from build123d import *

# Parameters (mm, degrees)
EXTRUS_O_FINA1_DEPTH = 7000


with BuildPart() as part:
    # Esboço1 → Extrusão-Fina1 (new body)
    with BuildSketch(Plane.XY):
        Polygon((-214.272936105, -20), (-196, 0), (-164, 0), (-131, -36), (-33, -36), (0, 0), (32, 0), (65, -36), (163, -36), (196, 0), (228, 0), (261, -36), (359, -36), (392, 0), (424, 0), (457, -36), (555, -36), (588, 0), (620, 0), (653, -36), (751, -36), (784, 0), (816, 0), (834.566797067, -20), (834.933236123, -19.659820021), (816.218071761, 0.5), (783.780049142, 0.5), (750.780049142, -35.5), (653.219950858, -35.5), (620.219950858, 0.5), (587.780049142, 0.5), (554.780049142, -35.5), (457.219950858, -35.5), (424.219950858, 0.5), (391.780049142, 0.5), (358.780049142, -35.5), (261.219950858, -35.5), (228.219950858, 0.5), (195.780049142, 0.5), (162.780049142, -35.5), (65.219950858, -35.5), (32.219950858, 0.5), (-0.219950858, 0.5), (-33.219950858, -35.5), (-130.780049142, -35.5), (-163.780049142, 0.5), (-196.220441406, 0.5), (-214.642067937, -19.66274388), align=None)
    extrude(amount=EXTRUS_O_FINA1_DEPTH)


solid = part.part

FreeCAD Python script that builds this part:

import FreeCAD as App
import Part
import Sketcher
from FreeCAD import Vector
Q = App.Units.Quantity

doc = App.newDocument("Part")
body = doc.addObject("PartDesign::Body", "Body")

# Sketch on XY plane
sketch1 = body.newObject("Sketcher::SketchObject", "Sketch")
sketch1.AttachmentSupport = (doc.getObject("XY_Plane"), [""])
sketch1.MapMode = "FlatFace"
sketch1.addGeometry([
    Part.LineSegment(Vector(-214.272936, -20, 0), Vector(-196, 0, 0)),  # 0
    Part.LineSegment(Vector(-196, 0, 0), Vector(-164, 0, 0)),  # 1
    Part.LineSegment(Vector(-164, 0, 0), Vector(-131, -36, 0)),  # 2
    Part.LineSegment(Vector(-131, -36, 0), Vector(-33, -36, 0)),  # 3
    Part.LineSegment(Vector(-33, -36, 0), Vector(0, 0, 0)),  # 4
    Part.LineSegment(Vector(0, 0, 0), Vector(32, 0, 0)),  # 5
    Part.LineSegment(Vector(32, 0, 0), Vector(65, -36, 0)),  # 6
    Part.LineSegment(Vector(65, -36, 0), Vector(163, -36, 0)),  # 7
    Part.LineSegment(Vector(163, -36, 0), Vector(196, 0, 0)),  # 8
    Part.LineSegment(Vector(196, 0, 0), Vector(228, 0, 0)),  # 9
    Part.LineSegment(Vector(228, 0, 0), Vector(261, -36, 0)),  # 10
    Part.LineSegment(Vector(261, -36, 0), Vector(359, -36, 0)),  # 11
    Part.LineSegment(Vector(359, -36, 0), Vector(392, 0, 0)),  # 12
    Part.LineSegment(Vector(392, 0, 0), Vector(424, 0, 0)),  # 13
    Part.LineSegment(Vector(424, 0, 0), Vector(457, -36, 0)),  # 14
    Part.LineSegment(Vector(457, -36, 0), Vector(555, -36, 0)),  # 15
    Part.LineSegment(Vector(555, -36, 0), Vector(588, 0, 0)),  # 16
    Part.LineSegment(Vector(588, 0, 0), Vector(620, 0, 0)),  # 17
    Part.LineSegment(Vector(620, 0, 0), Vector(653, -36, 0)),  # 18
    Part.LineSegment(Vector(653, -36, 0), Vector(751, -36, 0)),  # 19
    Part.LineSegment(Vector(751, -36, 0), Vector(784, 0, 0)),  # 20
    Part.LineSegment(Vector(784, 0, 0), Vector(816, 0, 0)),  # 21
    Part.LineSegment(Vector(816, 0, 0), Vector(834.566797, -20, 0)),  # 22
    Part.LineSegment(Vector(834.566797, -20, 0), Vector(834.933236, -19.65982, 0)),  # 23
    Part.LineSegment(Vector(834.933236, -19.65982, 0), Vector(816.218072, 0.5, 0)),  # 24
    Part.LineSegment(Vector(816.218072, 0.5, 0), Vector(783.780049, 0.5, 0)),  # 25
    Part.LineSegment(Vector(783.780049, 0.5, 0), Vector(750.780049, -35.5, 0)),  # 26
    Part.LineSegment(Vector(750.780049, -35.5, 0), Vector(653.219951, -35.5, 0)),  # 27
    Part.LineSegment(Vector(653.219951, -35.5, 0), Vector(620.219951, 0.5, 0)),  # 28
    Part.LineSegment(Vector(620.219951, 0.5, 0), Vector(587.780049, 0.5, 0)),  # 29
    Part.LineSegment(Vector(587.780049, 0.5, 0), Vector(554.780049, -35.5, 0)),  # 30
    Part.LineSegment(Vector(554.780049, -35.5, 0), Vector(457.219951, -35.5, 0)),  # 31
    Part.LineSegment(Vector(457.219951, -35.5, 0), Vector(424.219951, 0.5, 0)),  # 32
    Part.LineSegment(Vector(424.219951, 0.5, 0), Vector(391.780049, 0.5, 0)),  # 33
    Part.LineSegment(Vector(391.780049, 0.5, 0), Vector(358.780049, -35.5, 0)),  # 34
    Part.LineSegment(Vector(358.780049, -35.5, 0), Vector(261.219951, -35.5, 0)),  # 35
    Part.LineSegment(Vector(261.219951, -35.5, 0), Vector(228.219951, 0.5, 0)),  # 36
    Part.LineSegment(Vector(228.219951, 0.5, 0), Vector(195.780049, 0.5, 0)),  # 37
    Part.LineSegment(Vector(195.780049, 0.5, 0), Vector(162.780049, -35.5, 0)),  # 38
    Part.LineSegment(Vector(162.780049, -35.5, 0), Vector(65.219951, -35.5, 0)),  # 39
    Part.LineSegment(Vector(65.219951, -35.5, 0), Vector(32.219951, 0.5, 0)),  # 40
    Part.LineSegment(Vector(32.219951, 0.5, 0), Vector(-0.219951, 0.5, 0)),  # 41
    Part.LineSegment(Vector(-0.219951, 0.5, 0), Vector(-33.219951, -35.5, 0)),  # 42
    Part.LineSegment(Vector(-33.219951, -35.5, 0), Vector(-130.780049, -35.5, 0)),  # 43
    Part.LineSegment(Vector(-130.780049, -35.5, 0), Vector(-163.780049, 0.5, 0)),  # 44
    Part.LineSegment(Vector(-163.780049, 0.5, 0), Vector(-196.220441, 0.5, 0)),  # 45
    Part.LineSegment(Vector(-196.220441, 0.5, 0), Vector(-214.642068, -19.662744, 0)),  # 46
    Part.LineSegment(Vector(-214.642068, -19.662744, 0), Vector(-214.272936, -20, 0)),  # 47
], False)
sketch1.addConstraint([
    Sketcher.Constraint("Coincident", 0, 2, 1, 1),
    Sketcher.Constraint("Coincident", 1, 2, 2, 1),
    Sketcher.Constraint("Coincident", 2, 2, 3, 1),
    Sketcher.Constraint("Coincident", 3, 2, 4, 1),
    Sketcher.Constraint("Coincident", 4, 2, 5, 1),
    Sketcher.Constraint("Coincident", 5, 2, 6, 1),
    Sketcher.Constraint("Coincident", 6, 2, 7, 1),
    Sketcher.Constraint("Coincident", 7, 2, 8, 1),
    Sketcher.Constraint("Coincident", 8, 2, 9, 1),
    Sketcher.Constraint("Coincident", 9, 2, 10, 1),
    Sketcher.Constraint("Coincident", 10, 2, 11, 1),
    Sketcher.Constraint("Coincident", 11, 2, 12, 1),
    Sketcher.Constraint("Coincident", 12, 2, 13, 1),
    Sketcher.Constraint("Coincident", 13, 2, 14, 1),
    Sketcher.Constraint("Coincident", 14, 2, 15, 1),
    Sketcher.Constraint("Coincident", 15, 2, 16, 1),
    Sketcher.Constraint("Coincident", 16, 2, 17, 1),
    Sketcher.Constraint("Coincident", 17, 2, 18, 1),
    Sketcher.Constraint("Coincident", 18, 2, 19, 1),
    Sketcher.Constraint("Coincident", 19, 2, 20, 1),
    Sketcher.Constraint("Coincident", 20, 2, 21, 1),
    Sketcher.Constraint("Coincident", 21, 2, 22, 1),
    Sketcher.Constraint("Coincident", 22, 2, 23, 1),
    Sketcher.Constraint("Coincident", 23, 2, 24, 1),
    Sketcher.Constraint("Coincident", 24, 2, 25, 1),
    Sketcher.Constraint("Coincident", 25, 2, 26, 1),
    Sketcher.Constraint("Coincident", 26, 2, 27, 1),
    Sketcher.Constraint("Coincident", 27, 2, 28, 1),
    Sketcher.Constraint("Coincident", 28, 2, 29, 1),
    Sketcher.Constraint("Coincident", 29, 2, 30, 1),
    Sketcher.Constraint("Coincident", 30, 2, 31, 1),
    Sketcher.Constraint("Coincident", 31, 2, 32, 1),
    Sketcher.Constraint("Coincident", 32, 2, 33, 1),
    Sketcher.Constraint("Coincident", 33, 2, 34, 1),
    Sketcher.Constraint("Coincident", 34, 2, 35, 1),
    Sketcher.Constraint("Coincident", 35, 2, 36, 1),
    Sketcher.Constraint("Coincident", 36, 2, 37, 1),
    Sketcher.Constraint("Coincident", 37, 2, 38, 1),
    Sketcher.Constraint("Coincident", 38, 2, 39, 1),
    Sketcher.Constraint("Coincident", 39, 2, 40, 1),
    Sketcher.Constraint("Coincident", 40, 2, 41, 1),
    Sketcher.Constraint("Coincident", 41, 2, 42, 1),
    Sketcher.Constraint("Coincident", 42, 2, 43, 1),
    Sketcher.Constraint("Coincident", 43, 2, 44, 1),
    Sketcher.Constraint("Coincident", 44, 2, 45, 1),
    Sketcher.Constraint("Coincident", 45, 2, 46, 1),
    Sketcher.Constraint("Coincident", 46, 2, 47, 1),
    Sketcher.Constraint("Coincident", 47, 2, 0, 1),
    Sketcher.Constraint("Horizontal", 1),
    Sketcher.Constraint("Horizontal", 3),
    Sketcher.Constraint("Horizontal", 5),
    Sketcher.Constraint("Horizontal", 7),
    Sketcher.Constraint("Horizontal", 9),
    Sketcher.Constraint("Horizontal", 11),
    Sketcher.Constraint("Horizontal", 13),
    Sketcher.Constraint("Horizontal", 15),
    Sketcher.Constraint("Horizontal", 17),
    Sketcher.Constraint("Horizontal", 19),
    Sketcher.Constraint("Horizontal", 21),
    Sketcher.Constraint("Horizontal", 25),
    Sketcher.Constraint("Horizontal", 27),
    Sketcher.Constraint("Horizontal", 29),
    Sketcher.Constraint("Horizontal", 31),
    Sketcher.Constraint("Horizontal", 33),
    Sketcher.Constraint("Horizontal", 35),
    Sketcher.Constraint("Horizontal", 37),
    Sketcher.Constraint("Horizontal", 39),
    Sketcher.Constraint("Horizontal", 41),
    Sketcher.Constraint("Horizontal", 43),
    Sketcher.Constraint("Horizontal", 45),
    Sketcher.Constraint("Coincident", 4, 2, -1, 1),
    Sketcher.Constraint("Symmetric", 0, 2, 8, 2, -1, 1),
    Sketcher.Constraint("PointOnObject", 0, 2, -1),
    Sketcher.Constraint("PointOnObject", 12, 2, -1),
    Sketcher.Constraint("PointOnObject", 16, 2, -1),
    Sketcher.Constraint("PointOnObject", 20, 2, -1),
    Sketcher.Constraint("Parallel", 2, 6),
    Sketcher.Constraint("Parallel", 4, 8),
    Sketcher.Constraint("Parallel", 6, 10),
    Sketcher.Constraint("Parallel", 8, 12),
    Sketcher.Constraint("Parallel", 10, 14),
    Sketcher.Constraint("Parallel", 12, 16),
    Sketcher.Constraint("Parallel", 14, 18),
    Sketcher.Constraint("Parallel", 16, 20),
    Sketcher.Constraint("Perpendicular", 22, 23),
    Sketcher.Constraint("Perpendicular", 23, 24),
    Sketcher.Constraint("Parallel", 20, 26),
    Sketcher.Constraint("Parallel", 18, 28),
    Sketcher.Constraint("Parallel", 26, 30),
    Sketcher.Constraint("Parallel", 28, 32),
    Sketcher.Constraint("Parallel", 30, 34),
    Sketcher.Constraint("Parallel", 32, 36),
    Sketcher.Constraint("Parallel", 34, 38),
    Sketcher.Constraint("Parallel", 36, 40),
    Sketcher.Constraint("Parallel", 38, 42),
    Sketcher.Constraint("Parallel", 40, 44),
    Sketcher.Constraint("Parallel", 0, 46),
    Sketcher.Constraint("Perpendicular", 46, 47),
    Sketcher.Constraint("Horizontal", 3, 2, 6, 2),
    Sketcher.Constraint("Horizontal", 7, 2, 10, 2),
    Sketcher.Constraint("Horizontal", 11, 2, 14, 2),
    Sketcher.Constraint("Horizontal", 15, 2, 18, 2),
    Sketcher.Constraint("Horizontal", 25, 2, 28, 2),
    Sketcher.Constraint("Horizontal", 27, 2, 30, 2),
    Sketcher.Constraint("Horizontal", 29, 2, 32, 2),
    Sketcher.Constraint("Horizontal", 31, 2, 34, 2),
    Sketcher.Constraint("Horizontal", 33, 2, 36, 2),
    Sketcher.Constraint("Horizontal", 35, 2, 38, 2),
    Sketcher.Constraint("Horizontal", 37, 2, 40, 2),
    Sketcher.Constraint("Horizontal", 39, 2, 42, 2),
    Sketcher.Constraint("Horizontal", 41, 2, 44, 2),
    Sketcher.Constraint("Horizontal", 22, 2, 47, 2),
    Sketcher.Constraint("Equal", 1, 5),
    Sketcher.Constraint("Equal", 5, 9),
    Sketcher.Constraint("Equal", 7, 11),
    Sketcher.Constraint("Equal", 9, 13),
    Sketcher.Constraint("Equal", 11, 15),
    Sketcher.Constraint("Equal", 13, 17),
    Sketcher.Constraint("Equal", 15, 19),
    Sketcher.Constraint("Equal", 17, 21),
    Sketcher.Constraint("Equal", 27, 31),
    Sketcher.Constraint("Equal", 29, 33),
    Sketcher.Constraint("Equal", 31, 35),
    Sketcher.Constraint("Equal", 33, 37),
    Sketcher.Constraint("Equal", 35, 39),
    Sketcher.Constraint("Equal", 37, 41),
    Sketcher.Constraint("Equal", 39, 43),
    Sketcher.Constraint("Equal", 2, 4),
    Sketcher.Constraint("Equal", 20, 26),
    Sketcher.Constraint("Equal", 23, 47),
    Sketcher.Constraint("DistanceX", 1, 1, 1, 2, Q("32 mm")),
    Sketcher.Constraint("DistanceX", 3, 1, 3, 2, Q("98 mm")),
    Sketcher.Constraint("DistanceX", 0, 2, -1, 1, Q("196 mm")),
    Sketcher.Constraint("DistanceY", 2, 2, -1, 1, Q("36 mm")),
    Sketcher.Constraint("DistanceY", 22, 2, -1, 1, Q("20 mm")),
    Sketcher.Constraint("Distance", 23, Q("0.5 mm")),
    Sketcher.Constraint("DistanceY", -1, 1, 24, 2, Q("0.5 mm")),
    Sketcher.Constraint("DistanceX", 27, 2, 27, 1, Q("97.560098 mm")),
    Sketcher.Constraint("DistanceX", 29, 2, 29, 1, Q("32.439902 mm")),
    Sketcher.Constraint("Distance", 24, Q("27.507739 mm")),
    Sketcher.Constraint("DistanceX", 25, 2, 25, 1, Q("32.438023 mm")),
    Sketcher.Constraint("DistanceX", 45, 2, 45, 1, Q("32.440392 mm")),
])
pad1 = body.newObject("PartDesign::Pad", "Pad")
pad1.Profile = sketch1
pad1.Length = 7000

doc.recompute()
